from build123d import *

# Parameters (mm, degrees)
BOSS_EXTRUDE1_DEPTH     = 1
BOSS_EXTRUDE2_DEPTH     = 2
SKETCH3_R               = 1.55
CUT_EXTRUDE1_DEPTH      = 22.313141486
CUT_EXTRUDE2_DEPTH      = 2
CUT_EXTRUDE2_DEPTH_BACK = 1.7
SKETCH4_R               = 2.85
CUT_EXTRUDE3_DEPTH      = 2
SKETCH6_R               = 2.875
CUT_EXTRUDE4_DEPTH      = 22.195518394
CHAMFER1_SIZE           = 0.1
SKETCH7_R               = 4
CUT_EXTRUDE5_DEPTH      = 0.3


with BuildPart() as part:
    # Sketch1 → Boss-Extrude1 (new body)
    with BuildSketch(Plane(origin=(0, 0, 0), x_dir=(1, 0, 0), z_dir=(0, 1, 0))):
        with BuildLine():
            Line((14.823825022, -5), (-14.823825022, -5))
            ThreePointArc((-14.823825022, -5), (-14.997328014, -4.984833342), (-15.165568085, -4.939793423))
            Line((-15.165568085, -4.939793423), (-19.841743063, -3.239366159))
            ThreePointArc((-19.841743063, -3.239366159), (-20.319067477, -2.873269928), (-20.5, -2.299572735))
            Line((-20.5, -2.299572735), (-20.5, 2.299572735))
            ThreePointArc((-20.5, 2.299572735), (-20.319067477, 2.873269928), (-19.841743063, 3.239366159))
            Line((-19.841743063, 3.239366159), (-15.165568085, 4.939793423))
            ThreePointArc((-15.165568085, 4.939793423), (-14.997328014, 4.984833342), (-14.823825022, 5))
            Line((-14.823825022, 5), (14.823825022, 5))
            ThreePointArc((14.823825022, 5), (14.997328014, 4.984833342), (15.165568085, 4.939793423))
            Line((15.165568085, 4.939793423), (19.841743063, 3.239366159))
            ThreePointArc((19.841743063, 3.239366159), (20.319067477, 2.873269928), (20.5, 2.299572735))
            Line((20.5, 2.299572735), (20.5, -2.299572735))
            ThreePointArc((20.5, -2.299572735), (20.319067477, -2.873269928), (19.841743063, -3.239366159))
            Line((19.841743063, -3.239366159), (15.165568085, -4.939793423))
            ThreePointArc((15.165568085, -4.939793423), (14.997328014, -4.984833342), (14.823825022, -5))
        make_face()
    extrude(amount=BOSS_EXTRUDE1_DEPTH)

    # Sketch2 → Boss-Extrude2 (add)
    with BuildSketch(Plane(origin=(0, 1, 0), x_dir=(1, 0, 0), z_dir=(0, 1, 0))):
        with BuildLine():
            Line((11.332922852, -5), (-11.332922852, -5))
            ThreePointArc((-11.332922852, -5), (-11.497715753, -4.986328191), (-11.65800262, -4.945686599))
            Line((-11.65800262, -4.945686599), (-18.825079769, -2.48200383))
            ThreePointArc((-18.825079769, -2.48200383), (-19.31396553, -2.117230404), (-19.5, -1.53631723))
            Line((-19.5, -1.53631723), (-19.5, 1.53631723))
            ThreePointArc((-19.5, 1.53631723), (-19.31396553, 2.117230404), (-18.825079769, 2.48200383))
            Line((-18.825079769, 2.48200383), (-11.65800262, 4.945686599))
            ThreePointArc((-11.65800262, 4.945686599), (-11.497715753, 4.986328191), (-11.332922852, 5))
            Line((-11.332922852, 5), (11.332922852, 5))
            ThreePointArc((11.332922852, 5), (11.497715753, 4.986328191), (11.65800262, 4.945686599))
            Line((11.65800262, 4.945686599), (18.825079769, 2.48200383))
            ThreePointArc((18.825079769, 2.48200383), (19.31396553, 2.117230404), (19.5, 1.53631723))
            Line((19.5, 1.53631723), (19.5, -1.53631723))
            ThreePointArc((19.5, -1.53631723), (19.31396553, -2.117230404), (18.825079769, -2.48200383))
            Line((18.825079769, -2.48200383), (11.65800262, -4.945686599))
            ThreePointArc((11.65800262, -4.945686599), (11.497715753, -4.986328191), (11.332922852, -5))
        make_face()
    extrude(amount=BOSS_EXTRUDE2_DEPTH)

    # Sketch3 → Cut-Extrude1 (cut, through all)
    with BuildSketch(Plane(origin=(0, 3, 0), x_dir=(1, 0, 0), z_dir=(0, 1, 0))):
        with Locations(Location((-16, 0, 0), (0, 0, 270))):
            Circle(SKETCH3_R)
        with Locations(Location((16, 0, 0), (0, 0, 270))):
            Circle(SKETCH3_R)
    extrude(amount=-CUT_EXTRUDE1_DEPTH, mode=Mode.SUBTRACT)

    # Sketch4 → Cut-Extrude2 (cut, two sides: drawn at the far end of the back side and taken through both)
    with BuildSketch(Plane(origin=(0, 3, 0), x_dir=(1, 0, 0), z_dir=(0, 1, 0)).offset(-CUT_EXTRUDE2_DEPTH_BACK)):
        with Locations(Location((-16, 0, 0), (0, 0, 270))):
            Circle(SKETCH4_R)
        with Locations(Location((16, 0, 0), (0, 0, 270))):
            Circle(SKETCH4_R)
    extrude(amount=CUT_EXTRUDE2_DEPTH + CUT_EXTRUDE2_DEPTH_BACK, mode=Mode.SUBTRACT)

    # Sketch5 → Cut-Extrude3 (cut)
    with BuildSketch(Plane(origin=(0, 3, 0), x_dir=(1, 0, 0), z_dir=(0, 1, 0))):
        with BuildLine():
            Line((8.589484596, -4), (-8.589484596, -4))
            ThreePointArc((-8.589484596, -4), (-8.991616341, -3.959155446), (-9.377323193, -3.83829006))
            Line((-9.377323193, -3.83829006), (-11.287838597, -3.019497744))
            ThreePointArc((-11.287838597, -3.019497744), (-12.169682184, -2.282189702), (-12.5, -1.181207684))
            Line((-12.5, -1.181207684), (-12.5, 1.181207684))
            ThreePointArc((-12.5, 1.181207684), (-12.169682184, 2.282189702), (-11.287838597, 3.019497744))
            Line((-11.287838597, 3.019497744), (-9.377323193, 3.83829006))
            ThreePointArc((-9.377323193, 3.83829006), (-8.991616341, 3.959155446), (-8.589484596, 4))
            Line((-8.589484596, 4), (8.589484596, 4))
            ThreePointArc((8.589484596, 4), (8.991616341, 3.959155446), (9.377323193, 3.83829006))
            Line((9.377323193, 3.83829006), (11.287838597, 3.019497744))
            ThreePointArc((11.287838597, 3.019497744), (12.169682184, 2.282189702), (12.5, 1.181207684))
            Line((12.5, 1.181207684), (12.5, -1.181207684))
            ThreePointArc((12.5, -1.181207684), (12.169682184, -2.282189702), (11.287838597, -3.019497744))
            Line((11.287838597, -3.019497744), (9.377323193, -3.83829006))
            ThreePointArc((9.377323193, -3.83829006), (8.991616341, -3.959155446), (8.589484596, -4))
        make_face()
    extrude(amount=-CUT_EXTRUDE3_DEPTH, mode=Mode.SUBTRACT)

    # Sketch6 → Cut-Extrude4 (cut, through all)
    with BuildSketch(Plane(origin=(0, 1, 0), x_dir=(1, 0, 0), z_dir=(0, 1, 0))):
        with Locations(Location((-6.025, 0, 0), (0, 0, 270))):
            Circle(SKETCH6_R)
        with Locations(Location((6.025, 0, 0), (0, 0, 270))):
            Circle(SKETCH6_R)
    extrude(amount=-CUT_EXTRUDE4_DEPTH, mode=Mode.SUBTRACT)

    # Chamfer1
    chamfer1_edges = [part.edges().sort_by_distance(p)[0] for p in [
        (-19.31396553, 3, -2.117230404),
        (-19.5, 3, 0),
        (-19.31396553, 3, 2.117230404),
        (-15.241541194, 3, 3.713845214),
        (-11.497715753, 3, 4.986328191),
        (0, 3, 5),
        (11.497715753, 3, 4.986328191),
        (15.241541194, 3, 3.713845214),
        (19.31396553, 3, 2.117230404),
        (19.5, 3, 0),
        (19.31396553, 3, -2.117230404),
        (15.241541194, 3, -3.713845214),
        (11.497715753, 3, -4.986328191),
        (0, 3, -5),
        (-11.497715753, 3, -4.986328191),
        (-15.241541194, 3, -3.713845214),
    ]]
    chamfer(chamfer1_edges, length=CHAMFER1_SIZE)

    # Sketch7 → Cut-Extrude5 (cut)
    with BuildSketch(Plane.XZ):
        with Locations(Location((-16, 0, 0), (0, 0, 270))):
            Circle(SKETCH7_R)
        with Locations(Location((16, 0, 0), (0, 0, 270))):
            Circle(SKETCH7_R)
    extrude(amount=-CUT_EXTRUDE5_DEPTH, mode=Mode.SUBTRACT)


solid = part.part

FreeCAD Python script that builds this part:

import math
import FreeCAD as App
import Part
import Sketcher
from FreeCAD import Vector
Q = App.Units.Quantity


def edges_at(feature, points):
    """Names of the edges that pass closest to the given points."""
    edges = feature.Shape.Edges
    near = lambda p: min(range(len(edges)), key=lambda i: edges[i].distToShape(Part.Vertex(*p))[0])
    return sorted({f"Edge{near(p) + 1}" for p in points})

doc = App.newDocument("Part")
body = doc.addObject("PartDesign::Body", "Body")

sketch1 = body.newObject("Sketcher::SketchObject", "Sketch")
sketch1.AttachmentSupport = (doc.getObject("XZ_Plane"), [""])
sketch1.MapMode = "FlatFace"
sketch1.addGeometry([
    Part.LineSegment(Vector(-14.823825, 5, 0), Vector(14.823825, 5, 0)),
    Part.ArcOfCircle(Part.Circle(Vector(14.823825, 4, 0), Vector(0, 0, 1), 1), math.radians(70.016893), math.radians(90)),
    Part.LineSegment(Vector(15.165568, 4.939793, 0), Vector(19.841743, 3.239366, 0)),
    Part.ArcOfCircle(Part.Circle(Vector(19.5, 2.299573, 0), Vector(0, 0, 1), 1), math.radians(0), math.radians(70.016894)),
    Part.LineSegment(Vector(20.5, 2.299573, 0), Vector(20.5, -2.299573, 0)),
    Part.ArcOfCircle(Part.Circle(Vector(19.5, -2.299573, 0), Vector(0, 0, 1), 1), math.radians(-70.016894), math.radians(0)),
    Part.LineSegment(Vector(19.841743, -3.239366, 0), Vector(15.165568, -4.939793, 0)),
    Part.ArcOfCircle(Part.Circle(Vector(14.823825, -4, 0), Vector(0, 0, 1), 1), math.radians(-90), math.radians(-70.016893)),
    Part.LineSegment(Vector(14.823825, -5, 0), Vector(-14.823825, -5, 0)),
    Part.ArcOfCircle(Part.Circle(Vector(-14.823825, -4, 0), Vector(0, 0, 1), 1), math.radians(-109.983107), math.radians(-90)),
    Part.LineSegment(Vector(-15.165568, -4.939793, 0), Vector(-19.841743, -3.239366, 0)),
    Part.ArcOfCircle(Part.Circle(Vector(-19.5, -2.299573, 0), Vector(0, 0, 1), 1), math.radians(180), math.radians(250.016894)),
    Part.LineSegment(Vector(-20.5, -2.299573, 0), Vector(-20.5, 2.299573, 0)),
    Part.ArcOfCircle(Part.Circle(Vector(-19.5, 2.299573, 0), Vector(0, 0, 1), 1), math.radians(109.983106), math.radians(180)),
    Part.LineSegment(Vector(-19.841743, 3.239366, 0), Vector(-15.165568, 4.939793, 0)),
    Part.ArcOfCircle(Part.Circle(Vector(-14.823825, 4, 0), Vector(0, 0, 1), 1), math.radians(90), math.radians(109.983107)),
], False)
sketch1.addConstraint([
    Sketcher.Constraint("Tangent", 0, 2, 1, 2),
    Sketcher.Constraint("Tangent", 1, 1, 2, 1),
    Sketcher.Constraint("Tangent", 2, 2, 3, 2),
    Sketcher.Constraint("Tangent", 3, 1, 4, 1),
    Sketcher.Constraint("Tangent", 4, 2, 5, 2),
    Sketcher.Constraint("Tangent", 5, 1, 6, 1),
    Sketcher.Constraint("Tangent", 6, 2, 7, 2),
    Sketcher.Constraint("Tangent", 7, 1, 8, 1),
    Sketcher.Constraint("Tangent", 8, 2, 9, 2),
    Sketcher.Constraint("Tangent", 9, 1, 10, 1),
    Sketcher.Constraint("Tangent", 10, 2, 11, 2),
    Sketcher.Constraint("Tangent", 11, 1, 12, 1),
    Sketcher.Constraint("Tangent", 12, 2, 13, 2),
    Sketcher.Constraint("Tangent", 13, 1, 14, 1),
    Sketcher.Constraint("Tangent", 14, 2, 15, 2),
    Sketcher.Constraint("Tangent", 15, 1, 0, 1),
    Sketcher.Constraint("Horizontal", 0),
    Sketcher.Constraint("Vertical", 4),
    Sketcher.Constraint("Horizontal", 8),
    Sketcher.Constraint("Vertical", 12),
    Sketcher.Constraint("Equal", 1, 3),
    Sketcher.Constraint("Equal", 3, 5),
    Sketcher.Constraint("Equal", 5, 7),
    Sketcher.Constraint("Equal", 7, 9),
    Sketcher.Constraint("Equal", 9, 11),
    Sketcher.Constraint("Equal", 11, 13),
    Sketcher.Constraint("Equal", 13, 15),
    Sketcher.Constraint("Symmetric", 1, 3, 9, 3, -1, 1),
    Sketcher.Constraint("Symmetric", 3, 3, 11, 3, -1, 1),
    Sketcher.Constraint("Symmetric", 5, 1, 13, 1, -1, 1),
    Sketcher.Constraint("Symmetric", 6, 2, 9, 1, -2),
    Sketcher.Constraint("Radius", 1, Q("1 mm")),
    Sketcher.Constraint("DistanceY", -1, 1, 1, 3, Q("4 mm")),
    Sketcher.Constraint("DistanceX", 11, 3, 5, 3, Q("39 mm")),
    Sketcher.Constraint("DistanceX", 0, 1, 0, 2, Q("29.64765 mm")),
    Sketcher.Constraint("DistanceY", 4, 2, 4, 1, Q("4.599145 mm")),
])
pad1 = body.newObject("PartDesign::Pad", "Pad")
pad1.Profile = sketch1
pad1.Length = 1
pad1.Reversed = True

sketch2 = body.newObject("Sketcher::SketchObject", "Sketch001")
sketch2.AttachmentSupport = (doc.getObject("XZ_Plane"), [""])
sketch2.MapMode = "FlatFace"
sketch2.AttachmentOffset = App.Placement(Vector(0, 0, -1), App.Rotation())
sketch2.addGeometry([
    Part.LineSegment(Vector(-11.332923, 5, 0), Vector(11.332923, 5, 0)),
    Part.ArcOfCircle(Part.Circle(Vector(11.332923, 4, 0), Vector(0, 0, 1), 1), math.radians(71.029592), math.radians(90)),
    Part.LineSegment(Vector(11.658003, 4.945687, 0), Vector(18.82508, 2.482004, 0)),
    Part.ArcOfCircle(Part.Circle(Vector(18.5, 1.536317, 0), Vector(0, 0, 1), 1), math.radians(0), math.radians(71.029592)),
    Part.LineSegment(Vector(19.5, 1.536317, 0), Vector(19.5, -1.536317, 0)),
    Part.ArcOfCircle(Part.Circle(Vector(18.5, -1.536317, 0), Vector(0, 0, 1), 1), math.radians(-71.029592), math.radians(0)),
    Part.LineSegment(Vector(18.82508, -2.482004, 0), Vector(11.658003, -4.945687, 0)),
    Part.ArcOfCircle(Part.Circle(Vector(11.332923, -4, 0), Vector(0, 0, 1), 1), math.radians(-90), math.radians(-71.029592)),
    Part.LineSegment(Vector(11.332923, -5, 0), Vector(-11.332923, -5, 0)),
    Part.ArcOfCircle(Part.Circle(Vector(-11.332923, -4, 0), Vector(0, 0, 1), 1), math.radians(-108.970408), math.radians(-90)),
    Part.LineSegment(Vector(-11.658003, -4.945687, 0), Vector(-18.82508, -2.482004, 0)),
    Part.ArcOfCircle(Part.Circle(Vector(-18.5, -1.536317, 0), Vector(0, 0, 1), 1), math.radians(-180), math.radians(-108.970408)),
    Part.LineSegment(Vector(-19.5, -1.536317, 0), Vector(-19.5, 1.536317, 0)),
    Part.ArcOfCircle(Part.Circle(Vector(-18.5, 1.536317, 0), Vector(0, 0, 1), 1), math.radians(108.970408), math.radians(180)),
    Part.LineSegment(Vector(-18.82508, 2.482004, 0), Vector(-11.658003, 4.945687, 0)),
    Part.ArcOfCircle(Part.Circle(Vector(-11.332923, 4, 0), Vector(0, 0, 1), 1), math.radians(90), math.radians(108.970408)),
], False)
sketch2.addConstraint([
    Sketcher.Constraint("Tangent", 0, 2, 1, 2),
    Sketcher.Constraint("Tangent", 1, 1, 2, 1),
    Sketcher.Constraint("Tangent", 2, 2, 3, 2),
    Sketcher.Constraint("Tangent", 3, 1, 4, 1),
    Sketcher.Constraint("Tangent", 4, 2, 5, 2),
    Sketcher.Constraint("Tangent", 5, 1, 6, 1),
    Sketcher.Constraint("Tangent", 6, 2, 7, 2),
    Sketcher.Constraint("Tangent", 7, 1, 8, 1),
    Sketcher.Constraint("Tangent", 8, 2, 9, 2),
    Sketcher.Constraint("Tangent", 9, 1, 10, 1),
    Sketcher.Constraint("Tangent", 10, 2, 11, 2),
    Sketcher.Constraint("Tangent", 11, 1, 12, 1),
    Sketcher.Constraint("Tangent", 12, 2, 13, 2),
    Sketcher.Constraint("Tangent", 13, 1, 14, 1),
    Sketcher.Constraint("Tangent", 14, 2, 15, 2),
    Sketcher.Constraint("Tangent", 15, 1, 0, 1),
    Sketcher.Constraint("Horizontal", 0),
    Sketcher.Constraint("Vertical", 4),
    Sketcher.Constraint("Horizontal", 8),
    Sketcher.Constraint("Vertical", 12),
    Sketcher.Constraint("Equal", 1, 3),
    Sketcher.Constraint("Equal", 3, 5),
    Sketcher.Constraint("Equal", 5, 7),
    Sketcher.Constraint("Equal", 7, 9),
    Sketcher.Constraint("Equal", 9, 11),
    Sketcher.Constraint("Equal", 11, 13),
    Sketcher.Constraint("Equal", 13, 15),
    Sketcher.Constraint("Symmetric", 1, 3, 9, 3, -1, 1),
    Sketcher.Constraint("Symmetric", 3, 3, 11, 3, -1, 1),
    Sketcher.Constraint("Symmetric", 5, 1, 13, 1, -1, 1),
    Sketcher.Constraint("Symmetric", 6, 2, 9, 1, -2),
    Sketcher.Constraint("Radius", 1, Q("1 mm")),
    Sketcher.Constraint("DistanceY", -1, 1, 1, 3, Q("4 mm")),
    Sketcher.Constraint("DistanceX", 11, 3, 5, 3, Q("37 mm")),
    Sketcher.Constraint("DistanceX", 0, 1, 0, 2, Q("22.665846 mm")),
    Sketcher.Constraint("DistanceY", 4, 2, 4, 1, Q("3.072634 mm")),
])
pad2 = body.newObject("PartDesign::Pad", "Pad001")
pad2.Profile = sketch2
pad2.Length = 2
pad2.Reversed = True

sketch3 = body.newObject("Sketcher::SketchObject", "Sketch002")
sketch3.AttachmentSupport = (doc.getObject("XZ_Plane"), [""])
sketch3.MapMode = "FlatFace"
sketch3.AttachmentOffset = App.Placement(Vector(0, 0, -3), App.Rotation())
sketch3.addGeometry([
    Part.Circle(Vector(-16, 0, 0), Vector(0, 0, 1), 1.55),
    Part.Circle(Vector(16, 0, 0), Vector(0, 0, 1), 1.55),
], False)
sketch3.addConstraint([
    Sketcher.Constraint("Equal", 0, 1),
    Sketcher.Constraint("Symmetric", 0, 3, 1, 3, -1, 1),
    Sketcher.Constraint("PointOnObject", 0, 3, -1),
    Sketcher.Constraint("Diameter", 0, Q("3.1 mm")),
    Sketcher.Constraint("DistanceX", 0, 3, -1, 1, Q("16 mm")),
])
pocket1 = body.newObject("PartDesign::Pocket", "Pocket")
pocket1.Profile = sketch3
pocket1.Type = "ThroughAll"
pocket1.Reversed = True

sketch4 = body.newObject("Sketcher::SketchObject", "Sketch003")
sketch4.AttachmentSupport = (doc.getObject("XZ_Plane"), [""])
sketch4.MapMode = "FlatFace"
sketch4.AttachmentOffset = App.Placement(Vector(0, 0, -3), App.Rotation())
sketch4.addGeometry([
    Part.Circle(Vector(-16, 0, 0), Vector(0, 0, 1), 2.85),
    Part.Circle(Vector(16, 0, 0), Vector(0, 0, 1), 2.85),
], False)
sketch4.addConstraint([
    Sketcher.Constraint("Equal", 0, 1),
    Sketcher.Constraint("Symmetric", 0, 3, 1, 3, -1, 1),
    Sketcher.Constraint("PointOnObject", 0, 3, -1),
    Sketcher.Constraint("Diameter", 0, Q("5.7 mm")),
    Sketcher.Constraint("DistanceX", 0, 3, -1, 1, Q("16 mm")),
])
pocket2 = body.newObject("PartDesign::Pocket", "Pocket001")
pocket2.Profile = sketch4
pocket2.Type = "TwoLengths"
pocket2.Length = 2
pocket2.Length2 = 1.7

sketch5 = body.newObject("Sketcher::SketchObject", "Sketch004")
sketch5.AttachmentSupport = (doc.getObject("XZ_Plane"), [""])
sketch5.MapMode = "FlatFace"
sketch5.AttachmentOffset = App.Placement(Vector(0, 0, -3), App.Rotation())
sketch5.addGeometry([
    Part.LineSegment(Vector(-8.589485, 4, 0), Vector(8.589485, 4, 0)),
    Part.ArcOfCircle(Part.Circle(Vector(8.589485, 2, 0), Vector(0, 0, 1), 2), math.radians(66.801409), math.radians(90)),
    Part.LineSegment(Vector(9.377323, 3.83829, 0), Vector(11.287839, 3.019498, 0)),
    Part.ArcOfCircle(Part.Circle(Vector(10.5, 1.181208, 0), Vector(0, 0, 1), 2), math.radians(0), math.radians(66.801409)),
    Part.LineSegment(Vector(12.5, 1.181208, 0), Vector(12.5, -1.181208, 0)),
    Part.ArcOfCircle(Part.Circle(Vector(10.5, -1.181208, 0), Vector(0, 0, 1), 2), math.radians(-66.801409), math.radians(0)),
    Part.LineSegment(Vector(11.287839, -3.019498, 0), Vector(9.377323, -3.83829, 0)),
    Part.ArcOfCircle(Part.Circle(Vector(8.589485, -2, 0), Vector(0, 0, 1), 2), math.radians(-90), math.radians(-66.801409)),
    Part.LineSegment(Vector(8.589485, -4, 0), Vector(-8.589485, -4, 0)),
    Part.ArcOfCircle(Part.Circle(Vector(-8.589485, -2, 0), Vector(0, 0, 1), 2), math.radians(-113.198591), math.radians(-90)),
    Part.LineSegment(Vector(-9.377323, -3.83829, 0), Vector(-11.287839, -3.019498, 0)),
    Part.ArcOfCircle(Part.Circle(Vector(-10.5, -1.181208, 0), Vector(0, 0, 1), 2), math.radians(180), math.radians(246.801409)),
    Part.LineSegment(Vector(-12.5, -1.181208, 0), Vector(-12.5, 1.181208, 0)),
    Part.ArcOfCircle(Part.Circle(Vector(-10.5, 1.181208, 0), Vector(0, 0, 1), 2), math.radians(113.198591), math.radians(180)),
    Part.LineSegment(Vector(-11.287839, 3.019498, 0), Vector(-9.377323, 3.83829, 0)),
    Part.ArcOfCircle(Part.Circle(Vector(-8.589485, 2, 0), Vector(0, 0, 1), 2), math.radians(90), math.radians(113.198591)),
], False)
sketch5.addConstraint([
    Sketcher.Constraint("Tangent", 0, 2, 1, 2),
    Sketcher.Constraint("Tangent", 1, 1, 2, 1),
    Sketcher.Constraint("Tangent", 2, 2, 3, 2),
    Sketcher.Constraint("Tangent", 3, 1, 4, 1),
    Sketcher.Constraint("Tangent", 4, 2, 5, 2),
    Sketcher.Constraint("Tangent", 5, 1, 6, 1),
    Sketcher.Constraint("Tangent", 6, 2, 7, 2),
    Sketcher.Constraint("Tangent", 7, 1, 8, 1),
    Sketcher.Constraint("Tangent", 8, 2, 9, 2),
    Sketcher.Constraint("Tangent", 9, 1, 10, 1),
    Sketcher.Constraint("Tangent", 10, 2, 11, 2),
    Sketcher.Constraint("Tangent", 11, 1, 12, 1),
    Sketcher.Constraint("Tangent", 12, 2, 13, 2),
    Sketcher.Constraint("Tangent", 13, 1, 14, 1),
    Sketcher.Constraint("Tangent", 14, 2, 15, 2),
    Sketcher.Constraint("Tangent", 15, 1, 0, 1),
    Sketcher.Constraint("Horizontal", 0),
    Sketcher.Constraint("Vertical", 4),
    Sketcher.Constraint("Horizontal", 8),
    Sketcher.Constraint("Vertical", 12),
    Sketcher.Constraint("Equal", 1, 3),
    Sketcher.Constraint("Equal", 3, 5),
    Sketcher.Constraint("Equal", 5, 7),
    Sketcher.Constraint("Equal", 7, 9),
    Sketcher.Constraint("Equal", 9, 11),
    Sketcher.Constraint("Equal", 11, 13),
    Sketcher.Constraint("Equal", 13, 15),
    Sketcher.Constraint("Symmetric", 1, 3, 9, 3, -1, 1),
    Sketcher.Constraint("Symmetric", 3, 3, 11, 3, -1, 1),
    Sketcher.Constraint("Symmetric", 5, 1, 13, 1, -1, 1),
    Sketcher.Constraint("Symmetric", 6, 2, 9, 1, -2),
    Sketcher.Constraint("Radius", 1, Q("2 mm")),
    Sketcher.Constraint("DistanceY", -1, 1, 1, 3, Q("2 mm")),
    Sketcher.Constraint("DistanceX", 11, 3, 5, 3, Q("21 mm")),
    Sketcher.Constraint("DistanceX", 0, 1, 0, 2, Q("17.178969 mm")),
    Sketcher.Constraint("Distance", 2, Q("2.078579 mm")),
])
pocket3 = body.newObject("PartDesign::Pocket", "Pocket002")
pocket3.Profile = sketch5
pocket3.Length = 2
pocket3.Reversed = True

sketch6 = body.newObject("Sketcher::SketchObject", "Sketch005")
sketch6.AttachmentSupport = (doc.getObject("XZ_Plane"), [""])
sketch6.MapMode = "FlatFace"
sketch6.AttachmentOffset = App.Placement(Vector(0, 0, -1), App.Rotation())
sketch6.addGeometry([
    Part.Circle(Vector(-6.025, 0, 0), Vector(0, 0, 1), 2.875),
    Part.Circle(Vector(6.025, 0, 0), Vector(0, 0, 1), 2.875),
], False)
sketch6.addConstraint([
    Sketcher.Constraint("Equal", 0, 1),
    Sketcher.Constraint("Symmetric", 0, 3, 1, 3, -1, 1),
    Sketcher.Constraint("PointOnObject", 0, 3, -1),
    Sketcher.Constraint("Diameter", 0, Q("5.75 mm")),
    Sketcher.Constraint("DistanceX", 0, 3, 1, 3, Q("12.05 mm")),
])
pocket4 = body.newObject("PartDesign::Pocket", "Pocket003")
pocket4.Profile = sketch6
pocket4.Type = "ThroughAll"
pocket4.Reversed = True
doc.recompute()

chamfer = body.newObject("PartDesign::Chamfer", "Chamfer")
chamfer.Base = (pocket4, edges_at(pocket4, [
    (-19.314, 3, -2.117),
    (-19.5, 3, 0),
    (-19.314, 3, 2.117),
    (-15.242, 3, 3.714),
    (-11.498, 3, 4.986),
    (0, 3, 5),
    (11.498, 3, 4.986),
    (15.242, 3, 3.714),
    (19.314, 3, 2.117),
    (19.5, 3, 0),
    (19.314, 3, -2.117),
    (15.242, 3, -3.714),
    (11.498, 3, -4.986),
    (0, 3, -5),
    (-11.498, 3, -4.986),
    (-15.242, 3, -3.714),
]))
chamfer.Size = 0.1

sketch7 = body.newObject("Sketcher::SketchObject", "Sketch006")
sketch7.AttachmentSupport = (doc.getObject("XZ_Plane"), [""])
sketch7.MapMode = "FlatFace"
sketch7.addGeometry([
    Part.Circle(Vector(-16, 0, 0), Vector(0, 0, 1), 4),
    Part.Circle(Vector(16, 0, 0), Vector(0, 0, 1), 4),
], False)
sketch7.addConstraint([
    Sketcher.Constraint("Equal", 0, 1),
    Sketcher.Constraint("Symmetric", 0, 3, 1, 3, -1, 1),
    Sketcher.Constraint("PointOnObject", 0, 3, -1),
    Sketcher.Constraint("Diameter", 0, Q("8 mm")),
    Sketcher.Constraint("DistanceX", 0, 3, -1, 1, Q("16 mm")),
])
pocket5 = body.newObject("PartDesign::Pocket", "Pocket004")
pocket5.Profile = sketch7
pocket5.Length = 0.3

doc.recompute()
